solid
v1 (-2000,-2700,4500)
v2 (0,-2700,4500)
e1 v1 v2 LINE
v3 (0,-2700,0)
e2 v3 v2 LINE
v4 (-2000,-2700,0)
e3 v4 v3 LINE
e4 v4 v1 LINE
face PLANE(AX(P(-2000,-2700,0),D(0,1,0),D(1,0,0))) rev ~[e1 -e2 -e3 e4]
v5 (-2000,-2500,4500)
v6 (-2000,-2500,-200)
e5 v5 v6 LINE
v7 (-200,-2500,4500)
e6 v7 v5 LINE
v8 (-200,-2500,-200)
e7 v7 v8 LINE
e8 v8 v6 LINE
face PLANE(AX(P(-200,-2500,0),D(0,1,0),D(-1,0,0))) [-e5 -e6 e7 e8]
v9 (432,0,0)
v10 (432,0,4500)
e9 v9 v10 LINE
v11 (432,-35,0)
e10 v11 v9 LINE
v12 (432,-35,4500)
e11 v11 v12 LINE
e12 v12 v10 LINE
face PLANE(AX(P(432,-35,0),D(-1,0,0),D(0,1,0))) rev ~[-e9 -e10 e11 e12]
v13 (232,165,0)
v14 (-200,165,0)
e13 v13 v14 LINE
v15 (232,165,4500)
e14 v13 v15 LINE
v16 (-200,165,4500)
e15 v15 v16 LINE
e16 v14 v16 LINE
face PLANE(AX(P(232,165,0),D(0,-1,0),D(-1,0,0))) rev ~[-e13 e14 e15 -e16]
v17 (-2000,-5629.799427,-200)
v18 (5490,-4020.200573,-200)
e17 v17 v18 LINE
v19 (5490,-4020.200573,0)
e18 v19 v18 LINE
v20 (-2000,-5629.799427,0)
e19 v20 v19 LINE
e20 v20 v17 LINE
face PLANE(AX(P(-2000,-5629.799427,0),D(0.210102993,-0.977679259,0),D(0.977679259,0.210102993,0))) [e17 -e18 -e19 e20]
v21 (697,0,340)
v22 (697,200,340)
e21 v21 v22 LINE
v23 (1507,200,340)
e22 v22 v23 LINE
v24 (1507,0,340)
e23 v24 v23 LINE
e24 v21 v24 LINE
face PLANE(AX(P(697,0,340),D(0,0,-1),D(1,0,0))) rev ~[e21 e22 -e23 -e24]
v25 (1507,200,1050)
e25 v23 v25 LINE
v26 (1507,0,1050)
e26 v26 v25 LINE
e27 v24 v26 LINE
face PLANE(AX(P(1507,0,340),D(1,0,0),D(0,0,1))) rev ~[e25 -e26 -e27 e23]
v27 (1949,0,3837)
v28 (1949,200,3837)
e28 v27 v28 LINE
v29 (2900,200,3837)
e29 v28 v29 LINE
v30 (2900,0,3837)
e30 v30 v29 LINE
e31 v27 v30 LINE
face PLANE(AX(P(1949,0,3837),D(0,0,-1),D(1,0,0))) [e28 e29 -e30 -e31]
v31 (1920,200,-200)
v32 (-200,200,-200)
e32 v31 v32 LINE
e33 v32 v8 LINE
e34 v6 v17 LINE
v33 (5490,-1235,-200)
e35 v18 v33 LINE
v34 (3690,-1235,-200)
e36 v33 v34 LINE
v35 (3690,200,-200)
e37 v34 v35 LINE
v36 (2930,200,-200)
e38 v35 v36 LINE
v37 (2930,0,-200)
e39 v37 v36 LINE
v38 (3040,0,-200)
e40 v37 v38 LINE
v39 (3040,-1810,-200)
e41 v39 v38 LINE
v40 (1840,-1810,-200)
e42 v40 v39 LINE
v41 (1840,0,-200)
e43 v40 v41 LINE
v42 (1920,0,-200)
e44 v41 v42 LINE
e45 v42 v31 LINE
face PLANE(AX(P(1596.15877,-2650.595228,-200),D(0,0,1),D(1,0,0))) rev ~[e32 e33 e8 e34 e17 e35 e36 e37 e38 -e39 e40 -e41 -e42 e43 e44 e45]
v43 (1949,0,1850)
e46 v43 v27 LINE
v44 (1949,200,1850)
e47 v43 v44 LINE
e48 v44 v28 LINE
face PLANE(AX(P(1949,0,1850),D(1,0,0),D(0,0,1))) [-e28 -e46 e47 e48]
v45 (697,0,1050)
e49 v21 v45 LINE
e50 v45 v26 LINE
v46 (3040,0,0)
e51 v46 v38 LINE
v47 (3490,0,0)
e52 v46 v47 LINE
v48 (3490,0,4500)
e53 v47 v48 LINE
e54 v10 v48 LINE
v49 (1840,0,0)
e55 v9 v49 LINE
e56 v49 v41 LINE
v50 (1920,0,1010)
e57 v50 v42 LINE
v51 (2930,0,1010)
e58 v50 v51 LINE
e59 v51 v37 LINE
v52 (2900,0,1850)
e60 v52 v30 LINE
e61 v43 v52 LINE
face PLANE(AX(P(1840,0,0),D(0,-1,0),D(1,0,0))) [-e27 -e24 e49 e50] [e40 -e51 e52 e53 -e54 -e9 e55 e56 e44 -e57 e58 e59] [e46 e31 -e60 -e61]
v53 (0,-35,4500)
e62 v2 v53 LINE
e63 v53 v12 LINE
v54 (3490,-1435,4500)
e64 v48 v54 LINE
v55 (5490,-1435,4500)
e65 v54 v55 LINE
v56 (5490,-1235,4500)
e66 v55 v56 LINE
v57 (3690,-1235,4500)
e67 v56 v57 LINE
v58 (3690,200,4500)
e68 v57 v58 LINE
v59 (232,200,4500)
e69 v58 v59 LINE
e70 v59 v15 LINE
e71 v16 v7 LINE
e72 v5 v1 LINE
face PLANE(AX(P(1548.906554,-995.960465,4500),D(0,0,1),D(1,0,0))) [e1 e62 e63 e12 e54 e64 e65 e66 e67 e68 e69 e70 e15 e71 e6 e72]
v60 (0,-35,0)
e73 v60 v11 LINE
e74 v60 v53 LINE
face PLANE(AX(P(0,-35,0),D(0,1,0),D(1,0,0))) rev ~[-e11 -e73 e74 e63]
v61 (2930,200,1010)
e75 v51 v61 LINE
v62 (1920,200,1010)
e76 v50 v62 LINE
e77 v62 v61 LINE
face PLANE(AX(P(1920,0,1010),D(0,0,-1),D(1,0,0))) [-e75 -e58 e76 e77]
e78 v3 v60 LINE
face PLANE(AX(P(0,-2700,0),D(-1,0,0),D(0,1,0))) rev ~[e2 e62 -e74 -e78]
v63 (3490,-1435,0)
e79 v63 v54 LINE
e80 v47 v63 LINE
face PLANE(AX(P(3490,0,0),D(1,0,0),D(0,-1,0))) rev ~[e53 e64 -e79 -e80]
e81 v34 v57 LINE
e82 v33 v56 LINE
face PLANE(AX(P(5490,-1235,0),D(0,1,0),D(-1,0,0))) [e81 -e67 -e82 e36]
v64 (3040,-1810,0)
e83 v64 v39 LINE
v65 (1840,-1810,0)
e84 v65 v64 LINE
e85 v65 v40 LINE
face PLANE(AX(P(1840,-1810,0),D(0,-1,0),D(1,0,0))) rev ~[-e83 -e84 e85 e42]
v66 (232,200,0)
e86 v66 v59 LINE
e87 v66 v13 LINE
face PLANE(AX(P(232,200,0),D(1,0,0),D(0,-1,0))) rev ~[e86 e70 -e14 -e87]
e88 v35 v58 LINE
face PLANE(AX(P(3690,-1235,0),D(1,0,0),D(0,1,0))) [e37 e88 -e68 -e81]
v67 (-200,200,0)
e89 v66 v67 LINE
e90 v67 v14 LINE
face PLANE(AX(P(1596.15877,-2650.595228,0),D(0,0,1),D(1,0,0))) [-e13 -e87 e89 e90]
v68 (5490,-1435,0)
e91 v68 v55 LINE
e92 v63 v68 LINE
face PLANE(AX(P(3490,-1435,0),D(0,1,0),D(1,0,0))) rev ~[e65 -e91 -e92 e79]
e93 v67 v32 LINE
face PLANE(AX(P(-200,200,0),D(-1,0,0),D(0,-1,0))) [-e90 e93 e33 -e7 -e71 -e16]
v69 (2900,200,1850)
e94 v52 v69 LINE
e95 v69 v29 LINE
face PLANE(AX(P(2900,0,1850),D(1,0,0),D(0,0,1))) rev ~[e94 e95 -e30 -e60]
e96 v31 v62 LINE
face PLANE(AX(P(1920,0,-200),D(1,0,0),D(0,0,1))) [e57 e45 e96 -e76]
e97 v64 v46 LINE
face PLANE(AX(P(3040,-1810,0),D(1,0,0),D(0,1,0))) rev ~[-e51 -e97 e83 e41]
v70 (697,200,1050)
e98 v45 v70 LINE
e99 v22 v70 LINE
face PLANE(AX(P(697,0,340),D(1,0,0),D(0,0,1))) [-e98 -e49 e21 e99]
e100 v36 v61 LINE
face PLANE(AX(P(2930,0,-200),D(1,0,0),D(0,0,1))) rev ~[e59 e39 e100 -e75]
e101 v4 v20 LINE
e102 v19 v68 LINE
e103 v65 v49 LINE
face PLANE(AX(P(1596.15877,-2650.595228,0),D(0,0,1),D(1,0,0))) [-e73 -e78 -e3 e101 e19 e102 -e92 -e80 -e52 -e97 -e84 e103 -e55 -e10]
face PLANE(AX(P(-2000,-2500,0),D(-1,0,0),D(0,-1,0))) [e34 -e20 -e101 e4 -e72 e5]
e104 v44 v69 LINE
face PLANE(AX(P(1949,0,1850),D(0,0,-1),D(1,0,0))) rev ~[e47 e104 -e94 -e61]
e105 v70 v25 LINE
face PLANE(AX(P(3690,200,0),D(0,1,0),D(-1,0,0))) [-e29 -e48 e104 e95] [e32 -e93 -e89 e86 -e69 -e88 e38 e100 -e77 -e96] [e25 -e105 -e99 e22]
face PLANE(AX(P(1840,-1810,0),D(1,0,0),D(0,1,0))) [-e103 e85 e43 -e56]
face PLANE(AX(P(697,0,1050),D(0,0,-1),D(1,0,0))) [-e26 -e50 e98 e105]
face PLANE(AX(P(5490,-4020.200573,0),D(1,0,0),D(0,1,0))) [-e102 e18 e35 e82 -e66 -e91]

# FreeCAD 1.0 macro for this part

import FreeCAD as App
import Part
import Sketcher

V = App.Vector


def add_polygon(sketch, points):
    """Adds a closed chain of lines whose ends are joined by coincident constraints."""
    first, n = sketch.GeometryCount, len(points)
    for a, b in zip(points, points[1:] + points[:1]):
        sketch.addGeometry(Part.LineSegment(App.Vector(*a, 0), App.Vector(*b, 0)), False)
    for i in range(n):
        sketch.addConstraint(Sketcher.Constraint("Coincident", first + i, 2, first + (i + 1) % n, 1))

doc = App.newDocument("Part")
body = doc.addObject("PartDesign::Body", "Body")

# Sketch on XY plane
sketch1 = body.newObject("Sketcher::SketchObject", "Sketch")
sketch1.AttachmentSupport = (doc.getObject("XY_Plane"), [""])
sketch1.MapMode = "FlatFace"
add_polygon(sketch1, [(-2000, -2500), (-2000, -2700), (0, -2700), (0, -35), (432, -35), (432, 0), (3490, 0), (3490, -1435), (5490, -1435), (5490, -1235), (3690, -1235), (3690, 200), (232, 200), (232, 165), (-200, 165), (-200, -2500)])  # lines 0-15
sketch1.addConstraint([
    Sketcher.Constraint("Vertical", 0),
    Sketcher.Constraint("Horizontal", 1),
    Sketcher.Constraint("Vertical", 2),
    Sketcher.Constraint("Horizontal", 3),
    Sketcher.Constraint("Vertical", 4),
    Sketcher.Constraint("Horizontal", 5),
    Sketcher.Constraint("Vertical", 6),
    Sketcher.Constraint("Horizontal", 7),
    Sketcher.Constraint("Vertical", 8),
    Sketcher.Constraint("Horizontal", 9),
    Sketcher.Constraint("Vertical", 10),
    Sketcher.Constraint("Horizontal", 11),
    Sketcher.Constraint("Vertical", 12),
    Sketcher.Constraint("Horizontal", 13),
    Sketcher.Constraint("Vertical", 14),
    Sketcher.Constraint("Horizontal", 15),
    Sketcher.Constraint("PointOnObject", 1, 2, -2),
    Sketcher.Constraint("PointOnObject", 4, 2, -1),
    Sketcher.Constraint("Equal", 1, 7),
    Sketcher.Constraint("Equal", 3, 13),
    Sketcher.Constraint("Equal", 9, 15),
    Sketcher.Constraint("Equal", 0, 8),
    Sketcher.Constraint("Equal", 6, 10),
    Sketcher.Constraint("Equal", 4, 12),
    Sketcher.Constraint("DistanceX", 1, 1, 1, 2, 2000.0),
    Sketcher.Constraint("DistanceX", 3, 1, 3, 2, 432.0),
    Sketcher.Constraint("DistanceX", 5, 1, 5, 2, 3058.0),
    Sketcher.Constraint("DistanceX", 9, 2, 9, 1, 1800.0),
    Sketcher.Constraint("DistanceY", 0, 2, 0, 1, 200.0),
    Sketcher.Constraint("DistanceY", 2, 1, 2, 2, 2665.0),
    Sketcher.Constraint("DistanceY", 4, 1, 4, 2, 35.0),
    Sketcher.Constraint("DistanceY", 6, 2, 6, 1, 1435.0),
])
pad1 = body.newObject("PartDesign::Pad", "Pad")
pad1.Profile = sketch1
pad1.Length = 4500

# Sketch on XY plane
sketch2 = body.newObject("Sketcher::SketchObject", "Sketch001")
sketch2.AttachmentSupport = (doc.getObject("XY_Plane"), [""])
sketch2.MapMode = "FlatFace"
add_polygon(sketch2, [(-2000, -2500), (-2000, -5630), (5490, -4020), (5490, -1235), (3690, -1235), (3690, 200), (-200, 200), (-200, -2500)])  # lines 0-7
sketch2.addConstraint([
    Sketcher.Constraint("Vertical", 0),
    Sketcher.Constraint("Vertical", 2),
    Sketcher.Constraint("Horizontal", 3),
    Sketcher.Constraint("Vertical", 4),
    Sketcher.Constraint("Horizontal", 5),
    Sketcher.Constraint("Vertical", 6),
    Sketcher.Constraint("Horizontal", 7),
    Sketcher.Constraint("Equal", 3, 7),
    Sketcher.Constraint("DistanceX", 3, 2, 3, 1, 1800.0),
    Sketcher.Constraint("DistanceX", 5, 2, 5, 1, 3890.0),
    Sketcher.Constraint("DistanceY", 4, 1, 4, 2, 1435.0),
    Sketcher.Constraint("DistanceY", 6, 2, 6, 1, 2700.0),
    Sketcher.Constraint("DistanceX", 0, 2, -1, 1, 2000.0),
    Sketcher.Constraint("DistanceY", 2, 2, -1, 1, 1235.0),
    Sketcher.Constraint("DistanceY", 0, 2, 0, 1, 3129.799427),
    Sketcher.Constraint("DistanceY", 2, 1, 2, 2, 2785.200573),
])
pad2 = body.newObject("PartDesign::Pad", "Pad001")
pad2.Profile = sketch2
pad2.Length = 200
pad2.Reversed = True

# Sketch on XZ plane
sketch3 = body.newObject("Sketcher::SketchObject", "Sketch002")
sketch3.AttachmentSupport = (doc.getObject("XZ_Plane"), [""])
sketch3.MapMode = "FlatFace"
add_polygon(sketch3, [(1949, 3837), (1949, 1850), (2900, 1850), (2900, 3837)])  # lines 0-3
add_polygon(sketch3, [(1920, 1010), (1920, -200), (2930, -200), (2930, 1010)])  # lines 4-7
add_polygon(sketch3, [(697, 1050), (697, 340), (1507, 340), (1507, 1050)])  # lines 8-11
sketch3.addConstraint([
    Sketcher.Constraint("Vertical", 0),
    Sketcher.Constraint("Horizontal", 1),
    Sketcher.Constraint("Vertical", 2),
    Sketcher.Constraint("Horizontal", 3),
    Sketcher.Constraint("Vertical", 4),
    Sketcher.Constraint("Horizontal", 5),
    Sketcher.Constraint("Vertical", 6),
    Sketcher.Constraint("Horizontal", 7),
    Sketcher.Constraint("Vertical", 8),
    Sketcher.Constraint("Horizontal", 9),
    Sketcher.Constraint("Vertical", 10),
    Sketcher.Constraint("Horizontal", 11),
    Sketcher.Constraint("DistanceX", 1, 1, 1, 2, 951.0),
    Sketcher.Constraint("DistanceX", 5, 1, 5, 2, 1010.0),
    Sketcher.Constraint("DistanceX", 9, 1, 9, 2, 810.0),
    Sketcher.Constraint("DistanceY", 0, 2, 0, 1, 1987.0),
    Sketcher.Constraint("DistanceY", 4, 2, 4, 1, 1210.0),
    Sketcher.Constraint("DistanceY", 8, 2, 8, 1, 710.0),
    Sketcher.Constraint("DistanceX", -1, 1, 0, 2, 1949.0),
    Sketcher.Constraint("DistanceY", -1, 1, 0, 2, 1850.0),
    Sketcher.Constraint("DistanceX", -1, 1, 4, 2, 1920.0),
    Sketcher.Constraint("DistanceY", 4, 2, -1, 1, 200.0),
    Sketcher.Constraint("DistanceX", -1, 1, 8, 2, 697.0),
    Sketcher.Constraint("DistanceY", -1, 1, 8, 2, 340.0),
])
pocket1 = body.newObject("PartDesign::Pocket", "Pocket")
pocket1.Profile = sketch3
pocket1.Type = "ThroughAll"

# Sketch on XY plane
sketch4 = body.newObject("Sketcher::SketchObject", "Sketch003")
sketch4.AttachmentSupport = (doc.getObject("XY_Plane"), [""])
sketch4.MapMode = "FlatFace"
add_polygon(sketch4, [(1840, 0), (1840, -1810), (3040, -1810), (3040, 0)])  # lines 0-3
sketch4.addConstraint([
    Sketcher.Constraint("Vertical", 0),
    Sketcher.Constraint("Horizontal", 1),
    Sketcher.Constraint("Vertical", 2),
    Sketcher.Constraint("Horizontal", 3),
    Sketcher.Constraint("PointOnObject", 2, 2, -1),
    Sketcher.Constraint("DistanceX", 1, 1, 1, 2, 1200.0),
    Sketcher.Constraint("DistanceY", 0, 2, 0, 1, 1810.0),
    Sketcher.Constraint("DistanceX", -1, 1, 0, 2, 1840.0),
])
pocket2 = body.newObject("PartDesign::Pocket", "Pocket001")
pocket2.Profile = sketch4
pocket2.Type = "ThroughAll"

doc.recompute()
